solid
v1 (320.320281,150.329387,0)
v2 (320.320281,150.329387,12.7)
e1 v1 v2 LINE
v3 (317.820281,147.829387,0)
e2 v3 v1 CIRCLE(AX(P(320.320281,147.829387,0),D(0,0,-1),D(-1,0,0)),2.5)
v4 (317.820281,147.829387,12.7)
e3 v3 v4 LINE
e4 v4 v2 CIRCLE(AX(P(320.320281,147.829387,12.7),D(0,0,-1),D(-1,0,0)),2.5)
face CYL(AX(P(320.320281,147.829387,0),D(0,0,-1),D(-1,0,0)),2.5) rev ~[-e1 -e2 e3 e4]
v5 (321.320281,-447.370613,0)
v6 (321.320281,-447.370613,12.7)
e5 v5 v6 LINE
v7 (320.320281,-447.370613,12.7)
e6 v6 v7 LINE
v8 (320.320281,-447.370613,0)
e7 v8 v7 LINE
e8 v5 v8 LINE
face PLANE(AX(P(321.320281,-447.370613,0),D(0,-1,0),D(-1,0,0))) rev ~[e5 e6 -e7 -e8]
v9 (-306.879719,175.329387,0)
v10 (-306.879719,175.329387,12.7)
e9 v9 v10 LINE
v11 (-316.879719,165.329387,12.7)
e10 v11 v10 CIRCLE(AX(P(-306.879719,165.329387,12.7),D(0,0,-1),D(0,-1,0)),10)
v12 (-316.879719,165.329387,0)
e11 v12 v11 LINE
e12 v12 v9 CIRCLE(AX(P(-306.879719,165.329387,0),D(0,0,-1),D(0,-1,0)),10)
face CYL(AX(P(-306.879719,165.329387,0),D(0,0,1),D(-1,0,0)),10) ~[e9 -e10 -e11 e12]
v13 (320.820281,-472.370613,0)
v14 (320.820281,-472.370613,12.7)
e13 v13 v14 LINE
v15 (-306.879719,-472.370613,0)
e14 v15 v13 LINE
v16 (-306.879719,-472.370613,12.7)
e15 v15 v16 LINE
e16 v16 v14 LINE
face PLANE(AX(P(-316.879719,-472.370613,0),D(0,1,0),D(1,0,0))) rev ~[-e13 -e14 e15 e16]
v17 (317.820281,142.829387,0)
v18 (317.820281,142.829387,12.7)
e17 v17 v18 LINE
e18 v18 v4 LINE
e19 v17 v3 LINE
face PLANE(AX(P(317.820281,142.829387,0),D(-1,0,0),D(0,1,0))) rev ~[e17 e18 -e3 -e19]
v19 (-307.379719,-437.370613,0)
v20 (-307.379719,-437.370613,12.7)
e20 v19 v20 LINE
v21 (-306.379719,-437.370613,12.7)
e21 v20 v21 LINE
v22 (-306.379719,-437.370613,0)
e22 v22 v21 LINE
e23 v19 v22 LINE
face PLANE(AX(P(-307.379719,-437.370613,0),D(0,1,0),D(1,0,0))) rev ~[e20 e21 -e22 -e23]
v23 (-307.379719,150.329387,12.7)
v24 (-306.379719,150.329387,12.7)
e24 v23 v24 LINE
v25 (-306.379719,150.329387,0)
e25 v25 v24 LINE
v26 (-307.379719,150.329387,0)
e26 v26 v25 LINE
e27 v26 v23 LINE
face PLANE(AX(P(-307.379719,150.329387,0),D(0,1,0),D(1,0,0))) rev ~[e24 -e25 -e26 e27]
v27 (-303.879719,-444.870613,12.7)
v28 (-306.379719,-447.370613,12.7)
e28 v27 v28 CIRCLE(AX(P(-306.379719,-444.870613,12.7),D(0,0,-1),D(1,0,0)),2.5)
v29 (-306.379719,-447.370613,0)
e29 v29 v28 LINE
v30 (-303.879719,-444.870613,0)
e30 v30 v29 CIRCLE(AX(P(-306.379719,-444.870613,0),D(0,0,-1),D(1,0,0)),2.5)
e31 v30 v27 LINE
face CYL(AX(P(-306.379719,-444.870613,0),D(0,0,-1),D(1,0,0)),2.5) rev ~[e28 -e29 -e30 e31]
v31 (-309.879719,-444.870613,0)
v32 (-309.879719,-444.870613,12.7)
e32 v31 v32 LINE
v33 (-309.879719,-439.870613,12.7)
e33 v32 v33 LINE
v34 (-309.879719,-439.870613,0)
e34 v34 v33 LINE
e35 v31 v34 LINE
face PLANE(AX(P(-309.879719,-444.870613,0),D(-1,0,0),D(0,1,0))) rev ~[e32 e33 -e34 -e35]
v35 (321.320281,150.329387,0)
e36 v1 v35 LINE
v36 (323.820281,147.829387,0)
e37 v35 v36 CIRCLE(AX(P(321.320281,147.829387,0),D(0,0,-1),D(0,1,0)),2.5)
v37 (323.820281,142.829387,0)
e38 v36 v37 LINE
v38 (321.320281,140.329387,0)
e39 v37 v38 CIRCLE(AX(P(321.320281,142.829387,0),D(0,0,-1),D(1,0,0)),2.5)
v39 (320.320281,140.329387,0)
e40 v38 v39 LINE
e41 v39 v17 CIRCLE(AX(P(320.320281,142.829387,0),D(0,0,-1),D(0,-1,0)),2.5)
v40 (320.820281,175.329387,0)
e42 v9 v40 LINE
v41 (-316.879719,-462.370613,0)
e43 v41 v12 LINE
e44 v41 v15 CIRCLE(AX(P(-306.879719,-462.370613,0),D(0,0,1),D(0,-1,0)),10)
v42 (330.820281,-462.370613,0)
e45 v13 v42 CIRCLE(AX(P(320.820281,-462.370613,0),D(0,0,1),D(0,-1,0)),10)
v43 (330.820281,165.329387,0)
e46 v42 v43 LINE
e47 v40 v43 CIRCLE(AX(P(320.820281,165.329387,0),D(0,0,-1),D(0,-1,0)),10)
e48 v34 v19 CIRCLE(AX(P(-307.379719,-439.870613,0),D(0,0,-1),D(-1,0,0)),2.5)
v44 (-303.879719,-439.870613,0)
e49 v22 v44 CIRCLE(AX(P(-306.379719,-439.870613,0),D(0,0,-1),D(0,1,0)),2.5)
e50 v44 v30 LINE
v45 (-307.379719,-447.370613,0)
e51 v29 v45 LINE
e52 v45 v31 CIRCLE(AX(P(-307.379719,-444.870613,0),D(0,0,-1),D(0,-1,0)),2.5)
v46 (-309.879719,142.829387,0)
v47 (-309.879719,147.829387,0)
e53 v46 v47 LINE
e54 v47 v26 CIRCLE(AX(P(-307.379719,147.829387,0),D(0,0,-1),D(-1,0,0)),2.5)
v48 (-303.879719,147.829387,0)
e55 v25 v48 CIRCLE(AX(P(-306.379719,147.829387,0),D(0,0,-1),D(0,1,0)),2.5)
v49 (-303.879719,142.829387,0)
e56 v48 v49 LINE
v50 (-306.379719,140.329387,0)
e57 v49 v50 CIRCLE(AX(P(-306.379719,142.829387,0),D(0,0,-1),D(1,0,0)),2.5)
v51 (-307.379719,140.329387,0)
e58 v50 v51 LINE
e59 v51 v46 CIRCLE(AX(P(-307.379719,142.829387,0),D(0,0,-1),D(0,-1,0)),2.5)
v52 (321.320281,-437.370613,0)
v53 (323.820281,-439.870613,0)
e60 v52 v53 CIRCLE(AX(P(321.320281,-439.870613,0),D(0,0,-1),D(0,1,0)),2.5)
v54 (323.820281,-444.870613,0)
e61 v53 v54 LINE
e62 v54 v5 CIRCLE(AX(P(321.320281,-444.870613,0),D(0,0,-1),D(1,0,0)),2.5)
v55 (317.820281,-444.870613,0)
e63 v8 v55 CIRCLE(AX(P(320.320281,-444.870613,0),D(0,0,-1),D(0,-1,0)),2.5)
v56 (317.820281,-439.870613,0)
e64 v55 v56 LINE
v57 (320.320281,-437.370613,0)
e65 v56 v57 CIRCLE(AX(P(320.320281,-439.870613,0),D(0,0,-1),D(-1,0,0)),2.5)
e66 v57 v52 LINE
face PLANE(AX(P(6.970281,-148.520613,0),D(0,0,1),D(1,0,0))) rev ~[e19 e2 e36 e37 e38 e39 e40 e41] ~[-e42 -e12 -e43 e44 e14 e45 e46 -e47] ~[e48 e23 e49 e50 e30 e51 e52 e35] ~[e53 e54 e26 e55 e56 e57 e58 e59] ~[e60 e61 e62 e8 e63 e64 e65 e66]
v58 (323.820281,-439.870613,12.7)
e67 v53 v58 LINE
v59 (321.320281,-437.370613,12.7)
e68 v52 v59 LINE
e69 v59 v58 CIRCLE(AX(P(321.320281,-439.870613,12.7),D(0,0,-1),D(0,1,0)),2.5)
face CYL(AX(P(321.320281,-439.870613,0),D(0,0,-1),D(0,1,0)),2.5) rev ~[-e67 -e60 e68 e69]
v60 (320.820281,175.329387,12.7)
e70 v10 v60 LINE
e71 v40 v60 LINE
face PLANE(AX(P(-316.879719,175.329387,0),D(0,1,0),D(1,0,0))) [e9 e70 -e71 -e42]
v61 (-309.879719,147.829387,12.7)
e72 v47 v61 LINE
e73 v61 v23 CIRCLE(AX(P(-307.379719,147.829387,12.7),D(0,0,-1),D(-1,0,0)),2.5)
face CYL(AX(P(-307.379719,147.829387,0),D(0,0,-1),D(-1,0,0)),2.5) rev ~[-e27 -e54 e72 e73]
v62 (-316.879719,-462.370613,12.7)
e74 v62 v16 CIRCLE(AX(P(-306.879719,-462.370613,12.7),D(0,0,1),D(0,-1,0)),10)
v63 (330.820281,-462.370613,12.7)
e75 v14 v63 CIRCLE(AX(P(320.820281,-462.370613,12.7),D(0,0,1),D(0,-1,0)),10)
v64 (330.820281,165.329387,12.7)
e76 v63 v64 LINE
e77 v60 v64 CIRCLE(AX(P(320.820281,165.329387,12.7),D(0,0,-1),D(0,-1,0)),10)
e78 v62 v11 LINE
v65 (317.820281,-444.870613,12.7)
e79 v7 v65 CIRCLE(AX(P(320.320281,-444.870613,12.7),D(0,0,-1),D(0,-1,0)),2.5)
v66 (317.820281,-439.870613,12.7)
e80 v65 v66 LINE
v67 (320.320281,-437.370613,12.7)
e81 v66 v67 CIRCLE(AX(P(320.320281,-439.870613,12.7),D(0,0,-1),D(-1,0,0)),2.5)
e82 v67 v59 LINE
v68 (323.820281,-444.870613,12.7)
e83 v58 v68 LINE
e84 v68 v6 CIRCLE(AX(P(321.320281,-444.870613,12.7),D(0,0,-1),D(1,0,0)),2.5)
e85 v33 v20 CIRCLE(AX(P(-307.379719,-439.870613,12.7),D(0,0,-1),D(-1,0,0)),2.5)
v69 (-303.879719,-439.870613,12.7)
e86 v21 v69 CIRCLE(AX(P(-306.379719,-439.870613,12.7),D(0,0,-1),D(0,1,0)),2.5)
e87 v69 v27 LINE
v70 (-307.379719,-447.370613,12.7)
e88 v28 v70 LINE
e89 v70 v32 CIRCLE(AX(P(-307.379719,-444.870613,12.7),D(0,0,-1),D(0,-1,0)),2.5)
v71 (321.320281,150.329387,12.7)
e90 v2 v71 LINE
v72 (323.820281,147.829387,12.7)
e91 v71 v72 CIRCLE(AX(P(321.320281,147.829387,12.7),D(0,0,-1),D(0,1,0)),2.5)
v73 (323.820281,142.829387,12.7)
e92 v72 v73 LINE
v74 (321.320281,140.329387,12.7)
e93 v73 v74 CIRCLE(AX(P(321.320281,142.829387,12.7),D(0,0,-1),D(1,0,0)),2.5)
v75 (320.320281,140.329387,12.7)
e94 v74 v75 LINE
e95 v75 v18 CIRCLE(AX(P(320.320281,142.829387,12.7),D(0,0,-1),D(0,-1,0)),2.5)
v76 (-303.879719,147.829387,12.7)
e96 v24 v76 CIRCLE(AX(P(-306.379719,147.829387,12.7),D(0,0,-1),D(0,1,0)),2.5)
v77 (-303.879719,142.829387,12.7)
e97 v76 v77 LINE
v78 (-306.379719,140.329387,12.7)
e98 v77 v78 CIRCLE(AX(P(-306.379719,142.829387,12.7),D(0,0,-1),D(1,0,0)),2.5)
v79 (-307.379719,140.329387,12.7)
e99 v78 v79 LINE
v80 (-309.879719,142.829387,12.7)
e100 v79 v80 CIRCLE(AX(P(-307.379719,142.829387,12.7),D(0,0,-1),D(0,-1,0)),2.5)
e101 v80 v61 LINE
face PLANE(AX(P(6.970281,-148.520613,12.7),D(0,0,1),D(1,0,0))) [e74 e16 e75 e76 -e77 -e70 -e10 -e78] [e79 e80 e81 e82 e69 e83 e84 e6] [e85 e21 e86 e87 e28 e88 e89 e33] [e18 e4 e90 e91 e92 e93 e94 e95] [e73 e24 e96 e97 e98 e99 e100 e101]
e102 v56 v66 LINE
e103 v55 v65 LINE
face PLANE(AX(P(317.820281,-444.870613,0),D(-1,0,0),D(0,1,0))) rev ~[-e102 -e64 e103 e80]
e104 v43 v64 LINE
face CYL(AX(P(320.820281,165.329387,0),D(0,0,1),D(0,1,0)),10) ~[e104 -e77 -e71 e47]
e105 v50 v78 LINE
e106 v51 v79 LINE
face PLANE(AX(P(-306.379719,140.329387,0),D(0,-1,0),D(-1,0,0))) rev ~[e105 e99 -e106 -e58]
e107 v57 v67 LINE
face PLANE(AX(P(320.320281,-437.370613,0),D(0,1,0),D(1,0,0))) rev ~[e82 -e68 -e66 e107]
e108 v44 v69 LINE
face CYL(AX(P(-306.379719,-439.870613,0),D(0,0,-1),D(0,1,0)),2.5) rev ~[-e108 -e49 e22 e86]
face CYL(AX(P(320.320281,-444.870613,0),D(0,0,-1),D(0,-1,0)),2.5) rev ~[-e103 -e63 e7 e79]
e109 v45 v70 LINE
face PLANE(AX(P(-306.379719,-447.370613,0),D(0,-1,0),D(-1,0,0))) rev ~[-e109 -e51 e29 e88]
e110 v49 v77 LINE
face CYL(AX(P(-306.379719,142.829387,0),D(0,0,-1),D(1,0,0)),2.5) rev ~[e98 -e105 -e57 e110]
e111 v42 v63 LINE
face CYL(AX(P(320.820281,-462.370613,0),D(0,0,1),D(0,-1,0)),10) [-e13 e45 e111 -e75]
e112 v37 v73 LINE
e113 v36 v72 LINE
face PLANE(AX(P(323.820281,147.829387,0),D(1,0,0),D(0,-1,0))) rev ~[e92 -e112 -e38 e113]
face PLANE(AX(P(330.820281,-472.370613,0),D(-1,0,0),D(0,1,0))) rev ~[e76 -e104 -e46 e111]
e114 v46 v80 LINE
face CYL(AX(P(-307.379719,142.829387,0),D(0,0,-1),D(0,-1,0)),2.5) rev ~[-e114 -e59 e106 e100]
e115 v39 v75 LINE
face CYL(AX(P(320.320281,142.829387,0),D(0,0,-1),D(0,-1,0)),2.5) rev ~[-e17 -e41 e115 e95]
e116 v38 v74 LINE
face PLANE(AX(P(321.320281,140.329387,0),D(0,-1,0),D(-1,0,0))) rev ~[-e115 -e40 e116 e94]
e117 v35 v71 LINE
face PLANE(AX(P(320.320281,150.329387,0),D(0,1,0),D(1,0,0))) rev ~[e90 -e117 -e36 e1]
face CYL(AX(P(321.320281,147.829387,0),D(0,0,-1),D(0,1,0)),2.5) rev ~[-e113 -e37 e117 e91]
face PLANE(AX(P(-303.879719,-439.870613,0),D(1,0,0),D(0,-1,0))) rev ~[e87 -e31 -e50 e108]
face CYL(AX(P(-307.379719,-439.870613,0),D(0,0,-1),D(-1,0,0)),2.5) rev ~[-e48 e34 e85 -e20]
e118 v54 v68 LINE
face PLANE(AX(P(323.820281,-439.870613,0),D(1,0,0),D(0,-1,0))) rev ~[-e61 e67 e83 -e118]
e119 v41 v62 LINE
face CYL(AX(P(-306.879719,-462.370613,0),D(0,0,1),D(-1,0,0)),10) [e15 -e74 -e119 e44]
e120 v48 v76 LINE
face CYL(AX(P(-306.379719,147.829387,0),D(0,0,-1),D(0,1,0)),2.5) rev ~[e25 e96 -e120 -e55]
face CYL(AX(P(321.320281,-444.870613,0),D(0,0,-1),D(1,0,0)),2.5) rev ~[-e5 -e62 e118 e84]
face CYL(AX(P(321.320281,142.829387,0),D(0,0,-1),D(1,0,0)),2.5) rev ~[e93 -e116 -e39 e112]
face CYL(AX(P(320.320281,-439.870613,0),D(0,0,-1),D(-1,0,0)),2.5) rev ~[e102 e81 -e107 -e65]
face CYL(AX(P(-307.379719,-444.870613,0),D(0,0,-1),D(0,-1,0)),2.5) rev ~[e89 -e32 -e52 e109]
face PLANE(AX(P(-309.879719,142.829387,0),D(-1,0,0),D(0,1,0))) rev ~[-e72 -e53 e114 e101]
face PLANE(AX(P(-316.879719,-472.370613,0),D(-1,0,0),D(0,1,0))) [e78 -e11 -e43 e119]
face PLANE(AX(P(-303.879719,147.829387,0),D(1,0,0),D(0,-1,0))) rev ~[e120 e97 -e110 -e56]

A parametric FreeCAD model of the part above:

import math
import FreeCAD as App
import Part
import Sketcher
from FreeCAD import Vector
Q = App.Units.Quantity


def edges_at(feature, points):
    """Names of the edges that pass closest to the given points."""
    edges = feature.Shape.Edges
    near = lambda p: min(range(len(edges)), key=lambda i: edges[i].distToShape(Part.Vertex(*p))[0])
    return sorted({f"Edge{near(p) + 1}" for p in points})


def add_polygon(sketch, points):
    """Adds a closed chain of lines whose ends are joined by coincident constraints."""
    first, n = sketch.GeometryCount, len(points)
    for a, b in zip(points, points[1:] + points[:1]):
        sketch.addGeometry(Part.LineSegment(App.Vector(*a, 0), App.Vector(*b, 0)), False)
    for i in range(n):
        sketch.addConstraint(Sketcher.Constraint("Coincident", first + i, 2, first + (i + 1) % n, 1))

doc = App.newDocument("Part")
body = doc.addObject("PartDesign::Body", "Body")

sketch1 = body.newObject("Sketcher::SketchObject", "Sketch")
sketch1.AttachmentSupport = (doc.getObject("XY_Plane"), [""])
sketch1.MapMode = "FlatFace"
add_polygon(sketch1, [(-316.9, 175.3), (-316.9, -472.4), (330.8, -472.4), (330.8, 175.3)])
sketch1.addGeometry(Part.ArcOfCircle(Part.Circle(Vector(-306.4, -444.9, 0), Vector(0, 0, 1), 2.5), math.radians(-90), math.radians(0)), False)
sketch1.addGeometry(Part.LineSegment(Vector(-306.4, -447.4, 0), Vector(-307.4, -447.4, 0)), False)
sketch1.addGeometry(Part.ArcOfCircle(Part.Circle(Vector(-307.4, -444.9, 0), Vector(0, 0, 1), 2.5), math.radians(180), math.radians(270)), False)
sketch1.addGeometry(Part.LineSegment(Vector(-309.9, -444.9, 0), Vector(-309.9, -439.9, 0)), False)
sketch1.addGeometry(Part.ArcOfCircle(Part.Circle(Vector(-307.4, -439.9, 0), Vector(0, 0, 1), 2.5), math.radians(90), math.radians(180)), False)
sketch1.addGeometry(Part.LineSegment(Vector(-307.4, -437.4, 0), Vector(-306.4, -437.4, 0)), False)
sketch1.addGeometry(Part.ArcOfCircle(Part.Circle(Vector(-306.4, -439.9, 0), Vector(0, 0, 1), 2.5), math.radians(0), math.radians(90)), False)
sketch1.addGeometry(Part.LineSegment(Vector(-303.9, -439.9, 0), Vector(-303.9, -444.9, 0)), False)
sketch1.addGeometry(Part.ArcOfCircle(Part.Circle(Vector(321.3, -444.9, 0), Vector(0, 0, 1), 2.5), math.radians(-90), math.radians(0)), False)
sketch1.addGeometry(Part.LineSegment(Vector(321.3, -447.4, 0), Vector(320.3, -447.4, 0)), False)
sketch1.addGeometry(Part.ArcOfCircle(Part.Circle(Vector(320.3, -444.9, 0), Vector(0, 0, 1), 2.5), math.radians(180), math.radians(270)), False)
sketch1.addGeometry(Part.LineSegment(Vector(317.8, -444.9, 0), Vector(317.8, -439.9, 0)), False)
sketch1.addGeometry(Part.ArcOfCircle(Part.Circle(Vector(320.3, -439.9, 0), Vector(0, 0, 1), 2.5), math.radians(90), math.radians(180)), False)
sketch1.addGeometry(Part.LineSegment(Vector(320.3, -437.4, 0), Vector(321.3, -437.4, 0)), False)
sketch1.addGeometry(Part.ArcOfCircle(Part.Circle(Vector(321.3, -439.9, 0), Vector(0, 0, 1), 2.5), math.radians(0), math.radians(90)), False)
sketch1.addGeometry(Part.LineSegment(Vector(323.8, -439.9, 0), Vector(323.8, -444.9, 0)), False)
sketch1.addGeometry(Part.ArcOfCircle(Part.Circle(Vector(-306.4, 142.8, 0), Vector(0, 0, 1), 2.5), math.radians(-90), math.radians(0)), False)
sketch1.addGeometry(Part.LineSegment(Vector(-306.4, 140.3, 0), Vector(-307.4, 140.3, 0)), False)
sketch1.addGeometry(Part.ArcOfCircle(Part.Circle(Vector(-307.4, 142.8, 0), Vector(0, 0, 1), 2.5), math.radians(180), math.radians(270)), False)
sketch1.addGeometry(Part.LineSegment(Vector(-309.9, 142.8, 0), Vector(-309.9, 147.8, 0)), False)
sketch1.addGeometry(Part.ArcOfCircle(Part.Circle(Vector(-307.4, 147.8, 0), Vector(0, 0, 1), 2.5), math.radians(90), math.radians(180)), False)
sketch1.addGeometry(Part.LineSegment(Vector(-307.4, 150.3, 0), Vector(-306.4, 150.3, 0)), False)
sketch1.addGeometry(Part.ArcOfCircle(Part.Circle(Vector(-306.4, 147.8, 0), Vector(0, 0, 1), 2.5), math.radians(0), math.radians(90)), False)
sketch1.addGeometry(Part.LineSegment(Vector(-303.9, 147.8, 0), Vector(-303.9, 142.8, 0)), False)
sketch1.addGeometry(Part.ArcOfCircle(Part.Circle(Vector(321.3, 142.8, 0), Vector(0, 0, 1), 2.5), math.radians(-90), math.radians(0)), False)
sketch1.addGeometry(Part.LineSegment(Vector(321.3, 140.3, 0), Vector(320.3, 140.3, 0)), False)
sketch1.addGeometry(Part.ArcOfCircle(Part.Circle(Vector(320.3, 142.8, 0), Vector(0, 0, 1), 2.5), math.radians(180), math.radians(270)), False)
sketch1.addGeometry(Part.LineSegment(Vector(317.8, 142.8, 0), Vector(317.8, 147.8, 0)), False)
sketch1.addGeometry(Part.ArcOfCircle(Part.Circle(Vector(320.3, 147.8, 0), Vector(0, 0, 1), 2.5), math.radians(90), math.radians(180)), False)
sketch1.addGeometry(Part.LineSegment(Vector(320.3, 150.3, 0), Vector(321.3, 150.3, 0)), False)
sketch1.addGeometry(Part.ArcOfCircle(Part.Circle(Vector(321.3, 147.8, 0), Vector(0, 0, 1), 2.5), math.radians(0), math.radians(90)), False)
sketch1.addGeometry(Part.LineSegment(Vector(323.8, 147.8, 0), Vector(323.8, 142.8, 0)), False)
sketch1.addConstraint([
    Sketcher.Constraint("Tangent", 4, 1, 5, 1),
    Sketcher.Constraint("Tangent", 5, 2, 6, 2),
    Sketcher.Constraint("Tangent", 6, 1, 7, 1),
    Sketcher.Constraint("Tangent", 7, 2, 8, 2),
    Sketcher.Constraint("Tangent", 8, 1, 9, 1),
    Sketcher.Constraint("Tangent", 9, 2, 10, 2),
    Sketcher.Constraint("Tangent", 10, 1, 11, 1),
    Sketcher.Constraint("Tangent", 11, 2, 4, 2),
    Sketcher.Constraint("Tangent", 12, 1, 13, 1),
    Sketcher.Constraint("Tangent", 13, 2, 14, 2),
    Sketcher.Constraint("Tangent", 14, 1, 15, 1),
    Sketcher.Constraint("Tangent", 15, 2, 16, 2),
    Sketcher.Constraint("Tangent", 16, 1, 17, 1),
    Sketcher.Constraint("Tangent", 17, 2, 18, 2),
    Sketcher.Constraint("Tangent", 18, 1, 19, 1),
    Sketcher.Constraint("Tangent", 19, 2, 12, 2),
    Sketcher.Constraint("Tangent", 20, 1, 21, 1),
    Sketcher.Constraint("Tangent", 21, 2, 22, 2),
    Sketcher.Constraint("Tangent", 22, 1, 23, 1),
    Sketcher.Constraint("Tangent", 23, 2, 24, 2),
    Sketcher.Constraint("Tangent", 24, 1, 25, 1),
    Sketcher.Constraint("Tangent", 25, 2, 26, 2),
    Sketcher.Constraint("Tangent", 26, 1, 27, 1),
    Sketcher.Constraint("Tangent", 27, 2, 20, 2),
    Sketcher.Constraint("Tangent", 28, 1, 29, 1),
    Sketcher.Constraint("Tangent", 29, 2, 30, 2),
    Sketcher.Constraint("Tangent", 30, 1, 31, 1),
    Sketcher.Constraint("Tangent", 31, 2, 32, 2),
    Sketcher.Constraint("Tangent", 32, 1, 33, 1),
    Sketcher.Constraint("Tangent", 33, 2, 34, 2),
    Sketcher.Constraint("Tangent", 34, 1, 35, 1),
    Sketcher.Constraint("Tangent", 35, 2, 28, 2),
    Sketcher.Constraint("Vertical", 0),
    Sketcher.Constraint("Horizontal", 1),
    Sketcher.Constraint("Vertical", 2),
    Sketcher.Constraint("Horizontal", 3),
    Sketcher.Constraint("Horizontal", 5),
    Sketcher.Constraint("Vertical", 7),
    Sketcher.Constraint("Horizontal", 9),
    Sketcher.Constraint("Vertical", 11),
    Sketcher.Constraint("Horizontal", 13),
    Sketcher.Constraint("Vertical", 15),
    Sketcher.Constraint("Horizontal", 17),
    Sketcher.Constraint("Vertical", 19),
    Sketcher.Constraint("Horizontal", 21),
    Sketcher.Constraint("Vertical", 23),
    Sketcher.Constraint("Horizontal", 25),
    Sketcher.Constraint("Vertical", 27),
    Sketcher.Constraint("Horizontal", 29),
    Sketcher.Constraint("Vertical", 31),
    Sketcher.Constraint("Horizontal", 33),
    Sketcher.Constraint("Vertical", 35),
    Sketcher.Constraint("Equal", 4, 6),
    Sketcher.Constraint("Equal", 6, 8),
    Sketcher.Constraint("Equal", 8, 10),
    Sketcher.Constraint("Equal", 10, 12),
    Sketcher.Constraint("Equal", 12, 14),
    Sketcher.Constraint("Equal", 14, 16),
    Sketcher.Constraint("Equal", 16, 18),
    Sketcher.Constraint("Equal", 18, 20),
    Sketcher.Constraint("Equal", 20, 22),
    Sketcher.Constraint("Equal", 22, 24),
    Sketcher.Constraint("Equal", 24, 26),
    Sketcher.Constraint("Equal", 26, 28),
    Sketcher.Constraint("Equal", 28, 30),
    Sketcher.Constraint("Equal", 30, 32),
    Sketcher.Constraint("Equal", 32, 34),
    Sketcher.Constraint("Horizontal", 6, 3, 12, 3),
    Sketcher.Constraint("Horizontal", 10, 3, 16, 3),
    Sketcher.Constraint("Horizontal", 22, 3, 28, 3),
    Sketcher.Constraint("Horizontal", 26, 3, 32, 3),
    Sketcher.Constraint("Vertical", 10, 3, 20, 3),
    Sketcher.Constraint("Vertical", 8, 3, 22, 3),
    Sketcher.Constraint("Vertical", 18, 3, 28, 3),
    Sketcher.Constraint("Vertical", 16, 3, 30, 3),
    Sketcher.Constraint("Equal", 9, 13),
    Sketcher.Constraint("Equal", 3, 0),
    Sketcher.Constraint("Equal", 19, 23),
    Sketcher.Constraint("Radius", 4, Q("2.5 mm")),
    Sketcher.Constraint("DistanceX", 5, 2, 5, 1, Q("1 mm")),
    Sketcher.Constraint("DistanceY", 7, 1, 7, 2, Q("5 mm")),
    Sketcher.Constraint("DistanceX", 1, 1, 1, 2, Q("647.7 mm")),
    Sketcher.Constraint("DistanceY", 0, 2, 4, 1, Q("25 mm")),
    Sketcher.Constraint("DistanceY", 20, 1, 3, 2, Q("35 mm")),
    Sketcher.Constraint("DistanceX", 4, 3, 12, 3, Q("627.7 mm")),
    Sketcher.Constraint("DistanceX", 0, 2, 6, 3, Q("9.5 mm")),
    Sketcher.Constraint("DistanceX", 4, 3, -1, 1, Q("306.379719 mm")),
    Sketcher.Constraint("DistanceY", 4, 3, -1, 1, Q("444.870613 mm")),
])
pad1 = body.newObject("PartDesign::Pad", "Pad")
pad1.Profile = sketch1
pad1.Length = 12.7
doc.recompute()

fillet = body.newObject("PartDesign::Fillet", "Fillet")
fillet.Base = (pad1, edges_at(pad1, [
    (-316.88, 175.329, 6.35),
    (-316.88, -472.371, 6.35),
    (330.82, -472.371, 6.35),
    (330.82, 175.329, 6.35),
]))
fillet.Radius = 10

doc.recompute()
